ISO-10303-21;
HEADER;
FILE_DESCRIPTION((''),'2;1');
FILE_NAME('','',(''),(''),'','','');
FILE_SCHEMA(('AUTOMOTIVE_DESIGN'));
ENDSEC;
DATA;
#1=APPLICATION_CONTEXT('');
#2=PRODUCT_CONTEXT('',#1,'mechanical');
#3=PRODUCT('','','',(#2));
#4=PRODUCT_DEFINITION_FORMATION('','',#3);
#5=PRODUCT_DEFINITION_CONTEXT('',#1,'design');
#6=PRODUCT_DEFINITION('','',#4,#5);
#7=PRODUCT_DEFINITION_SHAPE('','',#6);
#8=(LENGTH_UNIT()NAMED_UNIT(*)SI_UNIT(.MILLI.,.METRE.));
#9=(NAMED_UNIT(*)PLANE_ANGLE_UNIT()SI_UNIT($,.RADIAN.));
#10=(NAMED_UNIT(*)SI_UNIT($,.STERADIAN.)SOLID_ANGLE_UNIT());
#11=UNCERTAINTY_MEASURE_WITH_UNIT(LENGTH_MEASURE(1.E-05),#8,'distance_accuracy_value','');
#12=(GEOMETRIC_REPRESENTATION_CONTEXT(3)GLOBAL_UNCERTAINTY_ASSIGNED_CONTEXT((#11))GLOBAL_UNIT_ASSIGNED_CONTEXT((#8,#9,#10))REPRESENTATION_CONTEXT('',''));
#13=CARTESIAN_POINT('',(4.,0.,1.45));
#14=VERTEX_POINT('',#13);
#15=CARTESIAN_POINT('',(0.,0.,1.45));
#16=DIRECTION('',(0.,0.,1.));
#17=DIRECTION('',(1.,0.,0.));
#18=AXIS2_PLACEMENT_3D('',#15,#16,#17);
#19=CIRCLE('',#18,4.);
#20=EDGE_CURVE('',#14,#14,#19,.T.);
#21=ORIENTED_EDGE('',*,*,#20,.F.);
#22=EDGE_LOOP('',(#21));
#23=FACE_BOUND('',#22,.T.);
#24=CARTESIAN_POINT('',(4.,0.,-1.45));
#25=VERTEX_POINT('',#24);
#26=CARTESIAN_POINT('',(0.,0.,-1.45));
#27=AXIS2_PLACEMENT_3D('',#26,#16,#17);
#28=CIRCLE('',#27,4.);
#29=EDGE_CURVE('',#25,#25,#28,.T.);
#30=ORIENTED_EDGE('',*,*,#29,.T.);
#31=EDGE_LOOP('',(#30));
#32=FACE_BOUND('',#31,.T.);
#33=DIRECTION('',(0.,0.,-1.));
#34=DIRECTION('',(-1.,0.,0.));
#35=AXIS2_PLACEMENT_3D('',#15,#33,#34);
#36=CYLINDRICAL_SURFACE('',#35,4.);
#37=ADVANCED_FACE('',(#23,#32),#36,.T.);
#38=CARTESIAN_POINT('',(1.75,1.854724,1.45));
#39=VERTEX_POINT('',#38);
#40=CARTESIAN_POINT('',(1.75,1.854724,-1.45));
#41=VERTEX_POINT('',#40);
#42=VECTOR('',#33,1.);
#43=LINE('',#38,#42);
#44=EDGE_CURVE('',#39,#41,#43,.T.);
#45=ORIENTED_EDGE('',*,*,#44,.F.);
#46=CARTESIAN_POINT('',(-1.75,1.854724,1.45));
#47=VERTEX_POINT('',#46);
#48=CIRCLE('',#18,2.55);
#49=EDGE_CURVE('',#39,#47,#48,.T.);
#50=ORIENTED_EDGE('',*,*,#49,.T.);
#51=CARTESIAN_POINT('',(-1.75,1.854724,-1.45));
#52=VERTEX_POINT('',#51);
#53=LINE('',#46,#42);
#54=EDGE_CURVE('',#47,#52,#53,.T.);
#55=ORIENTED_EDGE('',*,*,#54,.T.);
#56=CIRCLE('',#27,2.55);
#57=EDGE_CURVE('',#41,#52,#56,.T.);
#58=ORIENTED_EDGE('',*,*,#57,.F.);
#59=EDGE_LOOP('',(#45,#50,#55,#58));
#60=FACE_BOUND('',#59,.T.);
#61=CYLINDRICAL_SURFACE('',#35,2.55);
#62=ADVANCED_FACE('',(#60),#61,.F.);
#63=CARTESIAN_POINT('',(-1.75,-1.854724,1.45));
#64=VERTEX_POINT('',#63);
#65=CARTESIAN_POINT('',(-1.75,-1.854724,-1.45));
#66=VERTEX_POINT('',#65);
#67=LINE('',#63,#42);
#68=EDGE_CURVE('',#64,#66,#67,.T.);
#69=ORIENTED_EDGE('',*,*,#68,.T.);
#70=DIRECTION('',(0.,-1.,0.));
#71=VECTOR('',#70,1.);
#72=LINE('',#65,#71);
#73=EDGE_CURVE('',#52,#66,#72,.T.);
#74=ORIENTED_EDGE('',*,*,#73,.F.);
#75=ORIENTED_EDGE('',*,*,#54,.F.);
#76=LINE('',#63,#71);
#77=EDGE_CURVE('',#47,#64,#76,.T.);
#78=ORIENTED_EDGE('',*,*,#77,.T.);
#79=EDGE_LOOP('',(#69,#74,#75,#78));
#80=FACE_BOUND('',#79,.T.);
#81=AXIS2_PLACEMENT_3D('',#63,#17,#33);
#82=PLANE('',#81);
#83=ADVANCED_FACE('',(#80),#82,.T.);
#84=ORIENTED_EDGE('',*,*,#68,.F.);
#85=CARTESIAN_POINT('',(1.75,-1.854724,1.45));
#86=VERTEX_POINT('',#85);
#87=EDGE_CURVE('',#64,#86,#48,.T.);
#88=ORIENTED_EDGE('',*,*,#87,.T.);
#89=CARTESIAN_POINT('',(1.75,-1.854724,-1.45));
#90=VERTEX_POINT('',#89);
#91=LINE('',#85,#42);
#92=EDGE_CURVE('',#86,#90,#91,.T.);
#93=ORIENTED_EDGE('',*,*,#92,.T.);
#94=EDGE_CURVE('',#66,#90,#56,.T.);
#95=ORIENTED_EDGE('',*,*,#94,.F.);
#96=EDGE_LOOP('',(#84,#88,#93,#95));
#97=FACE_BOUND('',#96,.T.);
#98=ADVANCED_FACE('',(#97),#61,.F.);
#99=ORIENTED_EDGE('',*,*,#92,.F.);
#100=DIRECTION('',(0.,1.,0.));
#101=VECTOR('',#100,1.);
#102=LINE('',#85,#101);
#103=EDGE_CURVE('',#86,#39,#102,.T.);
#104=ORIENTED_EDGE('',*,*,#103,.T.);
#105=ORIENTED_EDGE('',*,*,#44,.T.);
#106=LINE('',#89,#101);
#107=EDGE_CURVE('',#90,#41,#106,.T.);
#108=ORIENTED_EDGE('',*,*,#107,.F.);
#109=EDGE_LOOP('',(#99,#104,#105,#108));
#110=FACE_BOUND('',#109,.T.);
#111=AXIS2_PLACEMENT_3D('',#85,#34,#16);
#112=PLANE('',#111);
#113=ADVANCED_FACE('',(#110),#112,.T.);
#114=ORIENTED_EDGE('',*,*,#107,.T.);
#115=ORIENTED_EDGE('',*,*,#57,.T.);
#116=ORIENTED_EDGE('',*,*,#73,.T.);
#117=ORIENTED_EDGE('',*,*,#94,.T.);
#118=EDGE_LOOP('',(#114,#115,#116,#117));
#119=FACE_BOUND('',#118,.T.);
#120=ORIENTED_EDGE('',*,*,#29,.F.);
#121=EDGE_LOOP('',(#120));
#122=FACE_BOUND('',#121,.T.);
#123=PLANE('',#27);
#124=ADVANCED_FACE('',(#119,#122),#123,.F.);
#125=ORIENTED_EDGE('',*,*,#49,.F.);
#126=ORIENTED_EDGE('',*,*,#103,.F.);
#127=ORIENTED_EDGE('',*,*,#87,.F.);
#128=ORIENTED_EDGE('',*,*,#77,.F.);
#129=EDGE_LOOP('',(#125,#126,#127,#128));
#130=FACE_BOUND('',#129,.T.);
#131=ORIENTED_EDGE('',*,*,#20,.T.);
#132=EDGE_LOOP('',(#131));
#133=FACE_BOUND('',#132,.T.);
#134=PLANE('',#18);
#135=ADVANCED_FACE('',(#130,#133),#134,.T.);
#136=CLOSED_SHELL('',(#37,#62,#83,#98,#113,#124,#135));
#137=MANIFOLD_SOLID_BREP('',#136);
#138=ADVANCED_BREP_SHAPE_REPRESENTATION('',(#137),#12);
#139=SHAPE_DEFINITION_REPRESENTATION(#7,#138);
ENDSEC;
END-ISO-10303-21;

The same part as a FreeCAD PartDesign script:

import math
import FreeCAD as App
import Part
import Sketcher
from FreeCAD import Vector

doc = App.newDocument("Part")
params = doc.addObject("Spreadsheet::Sheet", "Params")
for row, (alias, value) in enumerate([
    ("sketch1_diameter", "8 mm"),
    ("sketch1_radius", "2.55 mm"),
    ("pad1_length", "2.9 mm"),
], start=1):
    params.set(f"A{row}", alias)
    params.set(f"B{row}", "=" + value)
    params.setAlias(f"B{row}", alias)

body = doc.addObject("PartDesign::Body", "Body")

# Sketch on XY plane
sketch1 = body.newObject("Sketcher::SketchObject", "Sketch")
sketch1.AttachmentSupport = (doc.getObject("XY_Plane"), [""])
sketch1.MapMode = "FlatFace"
sketch1.addGeometry(Part.Circle(Vector(0, 0, 0), Vector(0, 0, 1), 4), False)
sketch1.addGeometry(Part.LineSegment(Vector(1.8, 1.9, 0), Vector(1.8, -1.9, 0)), False)
sketch1.addGeometry(Part.ArcOfCircle(Part.Circle(Vector(0, 0, 0), Vector(0, 0, 1), 2.5), math.radians(-133), math.radians(-47)), False)
sketch1.addGeometry(Part.LineSegment(Vector(-1.8, -1.9, 0), Vector(-1.8, 1.9, 0)), False)
sketch1.addGeometry(Part.ArcOfCircle(Part.Circle(Vector(0, 0, 0), Vector(0, 0, 1), 2.5), math.radians(47), math.radians(133)), False)
sketch1.addConstraint(Sketcher.Constraint("Coincident", 1, 2, 2, 2))
sketch1.addConstraint(Sketcher.Constraint("Coincident", 2, 1, 3, 1))
sketch1.addConstraint(Sketcher.Constraint("Coincident", 3, 2, 4, 2))
sketch1.addConstraint(Sketcher.Constraint("Coincident", 4, 1, 1, 1))
sketch1.addConstraint(Sketcher.Constraint("Vertical", 1))
sketch1.addConstraint(Sketcher.Constraint("Vertical", 3))
sketch1.addConstraint(Sketcher.Constraint("Coincident", 0, 3, -1, 1))
sketch1.addConstraint(Sketcher.Constraint("Coincident", 2, 3, -1, 1))
sketch1.addConstraint(Sketcher.Constraint("Coincident", 4, 3, -1, 1))
sketch1.addConstraint(Sketcher.Constraint("Equal", 2, 4))
sketch1.addConstraint(Sketcher.Constraint("Horizontal", 1, 2, 2, 1))
sketch1.addConstraint(Sketcher.Constraint("Diameter", 0, 8.0))
sketch1.addConstraint(Sketcher.Constraint("Radius", 2, 2.55))
sketch1.addConstraint(Sketcher.Constraint("DistanceX", 2, 1, 1, 2, 3.5))
sketch1.setExpression("Constraints[11]", "Params.sketch1_diameter")
sketch1.setExpression("Constraints[12]", "Params.sketch1_radius")
pad1 = body.newObject("PartDesign::Pad", "Pad")
pad1.Profile = sketch1
pad1.setExpression("Length", "Params.pad1_length")
pad1.Midplane = True

doc.recompute()
